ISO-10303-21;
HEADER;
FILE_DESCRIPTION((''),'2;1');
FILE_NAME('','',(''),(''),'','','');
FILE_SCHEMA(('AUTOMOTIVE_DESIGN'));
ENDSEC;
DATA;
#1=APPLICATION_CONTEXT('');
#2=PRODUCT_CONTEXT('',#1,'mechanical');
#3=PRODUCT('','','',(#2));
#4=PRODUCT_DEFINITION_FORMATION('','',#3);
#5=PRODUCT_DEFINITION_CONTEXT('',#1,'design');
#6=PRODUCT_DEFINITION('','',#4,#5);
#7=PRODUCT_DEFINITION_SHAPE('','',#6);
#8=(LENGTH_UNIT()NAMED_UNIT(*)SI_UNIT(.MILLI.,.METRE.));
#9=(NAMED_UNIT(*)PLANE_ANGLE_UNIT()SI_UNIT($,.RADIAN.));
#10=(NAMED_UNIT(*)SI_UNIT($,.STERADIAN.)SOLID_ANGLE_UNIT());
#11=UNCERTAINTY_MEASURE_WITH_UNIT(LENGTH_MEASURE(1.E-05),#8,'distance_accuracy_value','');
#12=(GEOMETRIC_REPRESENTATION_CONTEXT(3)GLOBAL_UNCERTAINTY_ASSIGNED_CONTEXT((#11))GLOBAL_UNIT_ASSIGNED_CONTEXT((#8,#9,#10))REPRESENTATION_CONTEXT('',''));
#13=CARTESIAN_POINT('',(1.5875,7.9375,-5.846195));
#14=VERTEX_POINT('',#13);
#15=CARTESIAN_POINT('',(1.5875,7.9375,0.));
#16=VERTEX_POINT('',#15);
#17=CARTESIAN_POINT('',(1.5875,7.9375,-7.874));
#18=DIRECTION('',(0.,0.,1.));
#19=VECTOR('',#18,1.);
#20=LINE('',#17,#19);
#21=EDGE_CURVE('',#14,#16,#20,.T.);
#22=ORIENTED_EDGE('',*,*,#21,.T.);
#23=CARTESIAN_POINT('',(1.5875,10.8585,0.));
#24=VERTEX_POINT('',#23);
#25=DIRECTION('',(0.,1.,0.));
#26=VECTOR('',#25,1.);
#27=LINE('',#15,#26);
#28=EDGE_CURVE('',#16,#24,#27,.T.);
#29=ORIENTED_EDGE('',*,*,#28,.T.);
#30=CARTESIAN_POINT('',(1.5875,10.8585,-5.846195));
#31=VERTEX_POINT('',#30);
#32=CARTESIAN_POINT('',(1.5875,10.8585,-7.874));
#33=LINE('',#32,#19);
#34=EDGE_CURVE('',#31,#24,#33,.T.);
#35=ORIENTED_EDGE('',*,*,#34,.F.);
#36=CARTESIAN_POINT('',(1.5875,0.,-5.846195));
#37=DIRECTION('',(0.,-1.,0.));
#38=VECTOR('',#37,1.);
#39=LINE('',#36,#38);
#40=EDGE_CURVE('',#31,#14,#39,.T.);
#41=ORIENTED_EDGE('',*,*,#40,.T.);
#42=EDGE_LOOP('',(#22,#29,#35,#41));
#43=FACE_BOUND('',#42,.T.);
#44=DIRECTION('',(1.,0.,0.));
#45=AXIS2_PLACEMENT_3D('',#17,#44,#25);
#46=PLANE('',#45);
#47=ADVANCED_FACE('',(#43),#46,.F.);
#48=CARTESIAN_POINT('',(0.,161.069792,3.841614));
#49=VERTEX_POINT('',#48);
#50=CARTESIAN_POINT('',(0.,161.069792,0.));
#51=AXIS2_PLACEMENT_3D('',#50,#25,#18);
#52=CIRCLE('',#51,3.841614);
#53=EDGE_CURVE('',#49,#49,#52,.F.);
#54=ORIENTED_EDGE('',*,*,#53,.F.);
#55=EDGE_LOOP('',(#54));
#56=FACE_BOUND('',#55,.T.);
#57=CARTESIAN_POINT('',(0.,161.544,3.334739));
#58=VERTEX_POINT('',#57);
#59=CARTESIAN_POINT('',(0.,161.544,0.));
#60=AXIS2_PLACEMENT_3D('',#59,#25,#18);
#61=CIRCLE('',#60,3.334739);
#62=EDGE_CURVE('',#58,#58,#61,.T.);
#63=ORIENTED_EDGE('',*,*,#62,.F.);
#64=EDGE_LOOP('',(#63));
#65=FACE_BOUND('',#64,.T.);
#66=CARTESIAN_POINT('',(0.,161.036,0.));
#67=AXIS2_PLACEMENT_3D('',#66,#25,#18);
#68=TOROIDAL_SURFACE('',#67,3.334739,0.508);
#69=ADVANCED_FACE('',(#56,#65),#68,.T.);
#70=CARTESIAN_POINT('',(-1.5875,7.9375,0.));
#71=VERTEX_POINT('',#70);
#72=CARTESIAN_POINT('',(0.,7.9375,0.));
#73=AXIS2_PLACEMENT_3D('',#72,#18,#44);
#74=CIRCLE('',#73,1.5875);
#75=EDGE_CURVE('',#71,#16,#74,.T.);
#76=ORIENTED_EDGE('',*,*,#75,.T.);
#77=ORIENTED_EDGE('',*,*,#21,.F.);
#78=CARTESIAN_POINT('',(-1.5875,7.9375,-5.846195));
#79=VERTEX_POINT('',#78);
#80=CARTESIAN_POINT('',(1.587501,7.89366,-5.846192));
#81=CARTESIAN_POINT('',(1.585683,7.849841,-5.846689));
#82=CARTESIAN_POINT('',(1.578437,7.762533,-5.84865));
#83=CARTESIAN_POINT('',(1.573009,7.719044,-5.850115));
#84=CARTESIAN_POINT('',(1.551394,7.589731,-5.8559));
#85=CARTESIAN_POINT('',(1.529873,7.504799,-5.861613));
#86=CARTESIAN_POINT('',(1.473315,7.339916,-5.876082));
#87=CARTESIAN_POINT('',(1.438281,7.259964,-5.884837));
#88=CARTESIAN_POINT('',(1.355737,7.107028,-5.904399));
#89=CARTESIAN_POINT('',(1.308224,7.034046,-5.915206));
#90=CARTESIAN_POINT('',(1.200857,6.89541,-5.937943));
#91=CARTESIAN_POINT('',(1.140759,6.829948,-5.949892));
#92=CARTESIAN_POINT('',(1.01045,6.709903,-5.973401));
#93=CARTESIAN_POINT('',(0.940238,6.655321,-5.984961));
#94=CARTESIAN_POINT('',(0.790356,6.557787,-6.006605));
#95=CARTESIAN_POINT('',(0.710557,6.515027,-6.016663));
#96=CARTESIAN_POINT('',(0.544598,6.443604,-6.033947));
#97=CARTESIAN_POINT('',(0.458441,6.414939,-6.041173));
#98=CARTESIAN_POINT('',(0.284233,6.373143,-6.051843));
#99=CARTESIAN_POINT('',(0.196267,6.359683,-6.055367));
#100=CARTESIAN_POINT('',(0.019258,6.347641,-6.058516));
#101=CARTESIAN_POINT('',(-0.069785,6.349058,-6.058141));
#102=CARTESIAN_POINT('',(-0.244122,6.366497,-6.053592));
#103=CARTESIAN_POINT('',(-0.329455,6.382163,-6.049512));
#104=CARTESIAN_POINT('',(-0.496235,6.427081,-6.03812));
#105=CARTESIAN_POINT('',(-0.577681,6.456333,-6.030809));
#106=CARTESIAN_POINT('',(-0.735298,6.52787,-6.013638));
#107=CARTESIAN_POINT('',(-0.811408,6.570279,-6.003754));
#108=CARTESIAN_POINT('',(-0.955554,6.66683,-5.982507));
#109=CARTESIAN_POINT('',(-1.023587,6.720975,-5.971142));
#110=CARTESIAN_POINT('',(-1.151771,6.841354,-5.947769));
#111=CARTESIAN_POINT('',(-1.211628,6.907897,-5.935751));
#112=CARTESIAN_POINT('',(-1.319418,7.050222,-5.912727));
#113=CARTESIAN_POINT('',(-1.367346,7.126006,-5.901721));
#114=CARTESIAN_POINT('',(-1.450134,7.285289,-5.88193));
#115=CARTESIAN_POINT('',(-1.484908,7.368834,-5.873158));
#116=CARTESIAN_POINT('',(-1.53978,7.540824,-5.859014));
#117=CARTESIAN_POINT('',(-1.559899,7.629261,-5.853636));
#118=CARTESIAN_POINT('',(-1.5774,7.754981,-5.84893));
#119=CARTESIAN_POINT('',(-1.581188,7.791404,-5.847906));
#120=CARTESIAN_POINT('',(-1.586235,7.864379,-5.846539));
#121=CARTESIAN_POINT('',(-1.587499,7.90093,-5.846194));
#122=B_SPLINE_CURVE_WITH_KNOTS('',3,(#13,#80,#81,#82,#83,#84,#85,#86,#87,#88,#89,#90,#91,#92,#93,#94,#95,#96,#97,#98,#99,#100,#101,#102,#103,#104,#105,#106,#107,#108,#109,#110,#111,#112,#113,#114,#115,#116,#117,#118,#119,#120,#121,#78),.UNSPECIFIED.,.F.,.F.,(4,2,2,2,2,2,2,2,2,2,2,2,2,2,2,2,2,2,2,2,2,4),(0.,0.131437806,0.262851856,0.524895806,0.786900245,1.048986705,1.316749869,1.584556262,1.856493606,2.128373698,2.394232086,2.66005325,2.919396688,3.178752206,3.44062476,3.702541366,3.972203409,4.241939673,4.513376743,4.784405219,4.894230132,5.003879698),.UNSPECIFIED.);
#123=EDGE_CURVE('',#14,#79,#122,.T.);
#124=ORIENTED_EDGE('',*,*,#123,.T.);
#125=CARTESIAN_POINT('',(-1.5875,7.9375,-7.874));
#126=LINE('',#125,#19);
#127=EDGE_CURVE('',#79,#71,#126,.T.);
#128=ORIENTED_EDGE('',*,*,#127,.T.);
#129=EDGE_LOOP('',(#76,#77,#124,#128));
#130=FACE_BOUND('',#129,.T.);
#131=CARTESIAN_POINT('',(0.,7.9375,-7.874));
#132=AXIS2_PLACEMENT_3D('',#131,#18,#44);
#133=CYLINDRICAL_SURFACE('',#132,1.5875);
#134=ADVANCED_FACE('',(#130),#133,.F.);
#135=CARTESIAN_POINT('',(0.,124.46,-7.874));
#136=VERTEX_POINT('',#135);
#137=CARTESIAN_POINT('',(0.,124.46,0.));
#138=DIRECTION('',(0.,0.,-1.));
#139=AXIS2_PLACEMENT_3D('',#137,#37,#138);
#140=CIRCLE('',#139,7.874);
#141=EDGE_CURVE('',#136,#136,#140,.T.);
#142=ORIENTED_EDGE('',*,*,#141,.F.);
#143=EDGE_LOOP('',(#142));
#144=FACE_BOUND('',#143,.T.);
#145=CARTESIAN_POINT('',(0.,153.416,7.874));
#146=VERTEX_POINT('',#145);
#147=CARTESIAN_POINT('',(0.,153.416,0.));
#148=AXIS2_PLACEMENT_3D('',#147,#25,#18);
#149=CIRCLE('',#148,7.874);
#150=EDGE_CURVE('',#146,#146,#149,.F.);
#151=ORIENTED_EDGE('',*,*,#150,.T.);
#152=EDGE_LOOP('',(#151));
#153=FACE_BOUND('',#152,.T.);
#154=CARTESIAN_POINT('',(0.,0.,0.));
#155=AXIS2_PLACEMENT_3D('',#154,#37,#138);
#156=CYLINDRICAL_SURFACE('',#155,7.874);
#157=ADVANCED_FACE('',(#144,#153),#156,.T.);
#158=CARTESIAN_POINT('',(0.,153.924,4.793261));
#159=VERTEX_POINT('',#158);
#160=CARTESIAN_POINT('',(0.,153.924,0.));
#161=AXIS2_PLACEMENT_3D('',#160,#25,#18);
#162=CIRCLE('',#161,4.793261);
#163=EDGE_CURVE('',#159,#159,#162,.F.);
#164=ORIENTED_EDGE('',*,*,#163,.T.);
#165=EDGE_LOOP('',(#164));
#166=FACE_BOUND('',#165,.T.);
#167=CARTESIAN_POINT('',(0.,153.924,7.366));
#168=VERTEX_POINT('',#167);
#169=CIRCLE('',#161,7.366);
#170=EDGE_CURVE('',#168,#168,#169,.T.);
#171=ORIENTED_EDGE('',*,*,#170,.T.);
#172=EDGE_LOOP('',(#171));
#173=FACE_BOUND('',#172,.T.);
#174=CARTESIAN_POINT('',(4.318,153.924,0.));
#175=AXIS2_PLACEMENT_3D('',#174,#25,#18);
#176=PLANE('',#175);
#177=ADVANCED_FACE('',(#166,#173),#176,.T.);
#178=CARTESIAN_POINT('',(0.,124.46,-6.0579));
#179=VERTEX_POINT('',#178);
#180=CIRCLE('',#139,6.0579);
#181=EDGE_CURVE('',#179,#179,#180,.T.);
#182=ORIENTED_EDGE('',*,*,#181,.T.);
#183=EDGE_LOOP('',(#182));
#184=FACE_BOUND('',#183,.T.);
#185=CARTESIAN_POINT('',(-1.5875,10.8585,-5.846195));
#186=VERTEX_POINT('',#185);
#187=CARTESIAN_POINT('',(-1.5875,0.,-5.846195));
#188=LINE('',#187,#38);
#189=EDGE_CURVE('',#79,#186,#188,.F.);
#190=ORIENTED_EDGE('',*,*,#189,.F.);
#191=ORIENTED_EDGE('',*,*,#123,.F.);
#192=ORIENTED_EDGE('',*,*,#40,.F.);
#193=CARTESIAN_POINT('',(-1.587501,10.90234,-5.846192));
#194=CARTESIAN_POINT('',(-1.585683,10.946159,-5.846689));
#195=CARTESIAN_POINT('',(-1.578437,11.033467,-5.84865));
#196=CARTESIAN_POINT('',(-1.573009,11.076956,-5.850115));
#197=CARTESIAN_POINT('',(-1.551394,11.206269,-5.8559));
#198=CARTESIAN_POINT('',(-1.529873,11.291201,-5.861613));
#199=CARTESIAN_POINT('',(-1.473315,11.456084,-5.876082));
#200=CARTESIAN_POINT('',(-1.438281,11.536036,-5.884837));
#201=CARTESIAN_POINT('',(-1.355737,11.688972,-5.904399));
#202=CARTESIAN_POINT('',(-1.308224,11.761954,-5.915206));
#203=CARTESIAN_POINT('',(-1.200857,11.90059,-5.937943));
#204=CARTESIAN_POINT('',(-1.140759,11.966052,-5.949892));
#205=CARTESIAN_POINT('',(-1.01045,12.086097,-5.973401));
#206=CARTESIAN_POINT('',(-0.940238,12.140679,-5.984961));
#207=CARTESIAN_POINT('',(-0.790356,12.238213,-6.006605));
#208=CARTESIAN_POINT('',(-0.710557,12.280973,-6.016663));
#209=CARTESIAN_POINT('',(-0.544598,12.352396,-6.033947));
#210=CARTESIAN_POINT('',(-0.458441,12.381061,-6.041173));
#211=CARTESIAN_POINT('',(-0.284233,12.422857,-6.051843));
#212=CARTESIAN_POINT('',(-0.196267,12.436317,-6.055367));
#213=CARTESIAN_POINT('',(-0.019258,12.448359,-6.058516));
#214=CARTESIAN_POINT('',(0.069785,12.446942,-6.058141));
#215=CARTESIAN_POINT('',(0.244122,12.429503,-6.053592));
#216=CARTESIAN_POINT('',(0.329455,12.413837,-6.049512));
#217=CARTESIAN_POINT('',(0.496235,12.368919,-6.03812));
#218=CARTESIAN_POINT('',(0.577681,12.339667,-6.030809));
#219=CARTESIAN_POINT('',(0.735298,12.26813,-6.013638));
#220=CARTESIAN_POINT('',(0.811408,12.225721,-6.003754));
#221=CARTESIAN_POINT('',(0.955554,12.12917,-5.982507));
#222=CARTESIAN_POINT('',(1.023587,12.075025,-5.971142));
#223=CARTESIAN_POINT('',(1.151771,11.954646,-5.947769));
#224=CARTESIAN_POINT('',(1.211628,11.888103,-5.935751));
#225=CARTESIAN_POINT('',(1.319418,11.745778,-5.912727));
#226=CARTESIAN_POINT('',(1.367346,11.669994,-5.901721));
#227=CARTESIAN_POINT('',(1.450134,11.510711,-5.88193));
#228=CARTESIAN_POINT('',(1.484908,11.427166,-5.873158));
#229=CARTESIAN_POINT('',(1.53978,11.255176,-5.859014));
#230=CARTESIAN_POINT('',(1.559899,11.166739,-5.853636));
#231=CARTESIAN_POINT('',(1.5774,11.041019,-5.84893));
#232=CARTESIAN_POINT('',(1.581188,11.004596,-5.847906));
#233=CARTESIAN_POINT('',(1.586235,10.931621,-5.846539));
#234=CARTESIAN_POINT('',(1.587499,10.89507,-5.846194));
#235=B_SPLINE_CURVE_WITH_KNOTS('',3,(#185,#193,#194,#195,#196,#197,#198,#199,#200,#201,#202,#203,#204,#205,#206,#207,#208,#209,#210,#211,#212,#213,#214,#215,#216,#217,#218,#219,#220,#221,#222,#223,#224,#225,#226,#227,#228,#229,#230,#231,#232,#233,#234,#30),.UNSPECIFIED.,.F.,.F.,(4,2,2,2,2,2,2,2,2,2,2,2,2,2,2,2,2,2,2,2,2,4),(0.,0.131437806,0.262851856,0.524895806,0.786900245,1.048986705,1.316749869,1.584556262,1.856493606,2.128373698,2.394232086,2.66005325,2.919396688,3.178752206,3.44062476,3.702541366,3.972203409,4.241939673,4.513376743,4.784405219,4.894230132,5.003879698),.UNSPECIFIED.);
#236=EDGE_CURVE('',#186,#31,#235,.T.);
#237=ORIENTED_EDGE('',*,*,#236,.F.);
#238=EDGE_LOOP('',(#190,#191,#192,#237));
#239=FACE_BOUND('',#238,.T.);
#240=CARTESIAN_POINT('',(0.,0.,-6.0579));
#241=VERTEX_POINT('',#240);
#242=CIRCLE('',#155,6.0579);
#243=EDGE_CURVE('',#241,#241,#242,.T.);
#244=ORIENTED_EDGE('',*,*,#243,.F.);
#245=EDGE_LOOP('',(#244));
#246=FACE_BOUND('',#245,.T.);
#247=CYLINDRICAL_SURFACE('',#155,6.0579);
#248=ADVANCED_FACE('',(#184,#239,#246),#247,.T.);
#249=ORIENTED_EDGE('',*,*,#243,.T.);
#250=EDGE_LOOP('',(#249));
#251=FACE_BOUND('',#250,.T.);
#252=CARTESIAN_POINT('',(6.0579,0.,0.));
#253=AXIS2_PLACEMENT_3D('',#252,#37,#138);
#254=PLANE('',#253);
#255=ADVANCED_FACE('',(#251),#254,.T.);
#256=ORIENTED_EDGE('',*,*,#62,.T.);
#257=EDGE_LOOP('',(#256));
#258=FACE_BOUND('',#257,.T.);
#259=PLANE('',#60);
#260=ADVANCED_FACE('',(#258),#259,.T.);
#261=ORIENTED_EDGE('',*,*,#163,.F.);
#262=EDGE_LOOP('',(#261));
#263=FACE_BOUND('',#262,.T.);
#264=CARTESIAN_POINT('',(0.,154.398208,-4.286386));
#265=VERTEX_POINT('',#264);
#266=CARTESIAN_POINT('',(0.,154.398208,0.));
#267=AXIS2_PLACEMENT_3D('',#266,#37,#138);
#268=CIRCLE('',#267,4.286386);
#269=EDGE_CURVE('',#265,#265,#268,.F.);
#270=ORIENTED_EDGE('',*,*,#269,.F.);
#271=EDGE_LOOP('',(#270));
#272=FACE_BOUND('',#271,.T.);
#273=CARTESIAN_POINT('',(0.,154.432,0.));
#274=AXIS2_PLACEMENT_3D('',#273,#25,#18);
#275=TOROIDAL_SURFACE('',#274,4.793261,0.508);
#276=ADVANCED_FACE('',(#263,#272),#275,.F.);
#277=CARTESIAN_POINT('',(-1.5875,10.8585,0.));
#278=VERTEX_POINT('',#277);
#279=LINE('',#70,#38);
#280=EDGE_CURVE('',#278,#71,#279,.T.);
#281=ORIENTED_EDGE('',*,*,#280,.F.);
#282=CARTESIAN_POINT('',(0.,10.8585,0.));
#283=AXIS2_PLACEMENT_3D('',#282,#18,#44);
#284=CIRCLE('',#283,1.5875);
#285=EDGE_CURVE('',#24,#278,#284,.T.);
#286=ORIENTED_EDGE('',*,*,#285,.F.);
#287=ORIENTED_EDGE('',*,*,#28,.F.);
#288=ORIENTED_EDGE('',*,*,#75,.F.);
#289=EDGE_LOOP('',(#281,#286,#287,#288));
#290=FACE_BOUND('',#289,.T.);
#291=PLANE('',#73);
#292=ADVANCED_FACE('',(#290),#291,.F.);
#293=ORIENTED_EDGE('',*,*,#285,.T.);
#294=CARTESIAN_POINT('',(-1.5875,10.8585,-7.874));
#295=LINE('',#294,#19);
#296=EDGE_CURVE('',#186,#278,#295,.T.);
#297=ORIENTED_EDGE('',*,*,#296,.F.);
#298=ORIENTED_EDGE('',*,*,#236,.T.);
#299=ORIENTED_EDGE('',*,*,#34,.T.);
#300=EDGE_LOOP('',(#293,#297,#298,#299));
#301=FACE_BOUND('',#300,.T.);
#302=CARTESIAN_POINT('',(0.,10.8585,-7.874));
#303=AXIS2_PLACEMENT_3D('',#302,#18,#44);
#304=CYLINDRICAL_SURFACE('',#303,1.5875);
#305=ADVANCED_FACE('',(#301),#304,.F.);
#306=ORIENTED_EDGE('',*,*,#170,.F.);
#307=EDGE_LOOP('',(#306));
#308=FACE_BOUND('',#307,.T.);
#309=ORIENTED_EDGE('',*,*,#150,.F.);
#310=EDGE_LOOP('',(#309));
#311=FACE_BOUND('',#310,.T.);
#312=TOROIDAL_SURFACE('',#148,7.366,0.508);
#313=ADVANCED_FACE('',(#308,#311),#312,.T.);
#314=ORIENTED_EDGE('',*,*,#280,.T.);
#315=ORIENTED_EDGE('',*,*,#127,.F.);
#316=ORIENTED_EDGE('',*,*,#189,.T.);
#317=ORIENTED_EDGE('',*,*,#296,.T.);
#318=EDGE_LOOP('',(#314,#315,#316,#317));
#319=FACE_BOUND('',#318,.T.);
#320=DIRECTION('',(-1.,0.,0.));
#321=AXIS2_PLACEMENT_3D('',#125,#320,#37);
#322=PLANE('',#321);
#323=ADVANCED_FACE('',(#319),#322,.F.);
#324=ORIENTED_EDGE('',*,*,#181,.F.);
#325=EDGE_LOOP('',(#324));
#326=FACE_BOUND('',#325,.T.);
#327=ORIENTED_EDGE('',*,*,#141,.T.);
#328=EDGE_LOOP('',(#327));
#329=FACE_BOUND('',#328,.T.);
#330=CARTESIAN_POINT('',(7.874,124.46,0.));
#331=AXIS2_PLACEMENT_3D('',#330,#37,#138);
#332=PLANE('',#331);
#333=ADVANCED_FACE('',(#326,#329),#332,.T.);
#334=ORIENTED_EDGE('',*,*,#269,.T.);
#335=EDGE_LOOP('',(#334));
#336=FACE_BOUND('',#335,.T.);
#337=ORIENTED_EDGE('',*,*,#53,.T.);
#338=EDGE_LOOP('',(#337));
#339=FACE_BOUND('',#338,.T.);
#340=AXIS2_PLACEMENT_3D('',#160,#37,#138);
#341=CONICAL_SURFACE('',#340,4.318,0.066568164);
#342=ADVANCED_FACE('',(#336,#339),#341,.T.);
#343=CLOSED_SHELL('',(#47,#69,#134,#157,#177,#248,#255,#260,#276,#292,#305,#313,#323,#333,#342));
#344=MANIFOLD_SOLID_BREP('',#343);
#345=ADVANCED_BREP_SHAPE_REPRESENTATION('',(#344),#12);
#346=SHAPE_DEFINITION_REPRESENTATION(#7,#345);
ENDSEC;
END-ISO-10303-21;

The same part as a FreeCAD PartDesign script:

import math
import FreeCAD as App
import Part
import Sketcher
Q = App.Units.Quantity


def edges_at(feature, points):
    """Names of the edges that pass closest to the given points."""
    edges = feature.Shape.Edges
    near = lambda p: min(range(len(edges)), key=lambda i: edges[i].distToShape(Part.Vertex(*p))[0])
    return sorted({f"Edge{near(p) + 1}" for p in points})

doc = App.newDocument("Part")
body = doc.addObject("PartDesign::Body", "Body")

# Sketch on XY plane
sketch1 = body.newObject("Sketcher::SketchObject", "Sketch")
sketch1.AttachmentSupport = (doc.getObject("XY_Plane"), [""])
sketch1.MapMode = "FlatFace"
sketch1.addGeometry(Part.LineSegment(App.Vector(3.8, 161.5, 0), App.Vector(0, 161.5, 0)), False)
sketch1.addGeometry(Part.LineSegment(App.Vector(0, 161.5, 0), App.Vector(0, 0, 0)), False)
sketch1.addGeometry(Part.LineSegment(App.Vector(0, 0, 0), App.Vector(6.1, 0, 0)), False)
sketch1.addGeometry(Part.LineSegment(App.Vector(6.1, 0, 0), App.Vector(6.1, 124.5, 0)), False)
sketch1.addGeometry(Part.LineSegment(App.Vector(6.1, 124.5, 0), App.Vector(7.9, 124.5, 0)), False)
sketch1.addGeometry(Part.LineSegment(App.Vector(7.9, 124.5, 0), App.Vector(7.9, 153.9, 0)), False)
sketch1.addGeometry(Part.LineSegment(App.Vector(7.9, 153.9, 0), App.Vector(4.3, 153.9, 0)), False)
sketch1.addGeometry(Part.LineSegment(App.Vector(4.3, 153.9, 0), App.Vector(3.8, 161.5, 0)), False)
sketch1.addConstraint(Sketcher.Constraint("Coincident", 0, 2, 1, 1))
sketch1.addConstraint(Sketcher.Constraint("Coincident", 1, 2, 2, 1))
sketch1.addConstraint(Sketcher.Constraint("Coincident", 2, 2, 3, 1))
sketch1.addConstraint(Sketcher.Constraint("Coincident", 3, 2, 4, 1))
sketch1.addConstraint(Sketcher.Constraint("Coincident", 4, 2, 5, 1))
sketch1.addConstraint(Sketcher.Constraint("Coincident", 5, 2, 6, 1))
sketch1.addConstraint(Sketcher.Constraint("Coincident", 6, 2, 7, 1))
sketch1.addConstraint(Sketcher.Constraint("Coincident", 7, 2, 0, 1))
sketch1.addConstraint(Sketcher.Constraint("Horizontal", 0))
sketch1.addConstraint(Sketcher.Constraint("Vertical", 1))
sketch1.addConstraint(Sketcher.Constraint("Horizontal", 2))
sketch1.addConstraint(Sketcher.Constraint("Vertical", 3))
sketch1.addConstraint(Sketcher.Constraint("Horizontal", 4))
sketch1.addConstraint(Sketcher.Constraint("Vertical", 5))
sketch1.addConstraint(Sketcher.Constraint("Horizontal", 6))
sketch1.addConstraint(Sketcher.Constraint("Coincident", 1, 2, -1, 1))
sketch1.addConstraint(Sketcher.Constraint("DistanceY", 3, 1, 3, 2, Q("4.9 in")))
sketch1.addConstraint(Sketcher.Constraint("DistanceX", 0, 2, 0, 1, Q("0.15 in")))
sketch1.addConstraint(Sketcher.Constraint("DistanceX", 6, 2, 6, 1, Q("0.14 in")))
sketch1.addConstraint(Sketcher.Constraint("DistanceY", 1, 2, 1, 1, Q("6.36 in")))
sketch1.addConstraint(Sketcher.Constraint("DistanceY", 5, 1, 5, 2, Q("1.16 in")))
sketch1.addConstraint(Sketcher.Constraint("DistanceX", -1, 1, 4, 2, Q("0.31 in")))
sketch1.addConstraint(Sketcher.Constraint("DistanceX", 2, 1, 2, 2, Q("0.2385 in")))
revolution = body.newObject("PartDesign::Revolution", "Revolution")
revolution.Profile = sketch1
revolution.ReferenceAxis = (sketch1, ["V_Axis"])
revolution.Angle = 360

# Sketch on XY plane
sketch2 = body.newObject("Sketcher::SketchObject", "Sketch001")
sketch2.AttachmentSupport = (doc.getObject("XY_Plane"), [""])
sketch2.MapMode = "FlatFace"
sketch2.addGeometry(Part.LineSegment(App.Vector(-1.6, 10.9, 0), App.Vector(-1.6, 7.9, 0)), False)
sketch2.addGeometry(Part.ArcOfCircle(Part.Circle(App.Vector(0, 7.9, 0), App.Vector(0, 0, 1), 1.6), math.radians(180), math.radians(360)), False)
sketch2.addGeometry(Part.LineSegment(App.Vector(1.6, 7.9, 0), App.Vector(1.6, 10.9, 0)), False)
sketch2.addGeometry(Part.ArcOfCircle(Part.Circle(App.Vector(0, 10.9, 0), App.Vector(0, 0, 1), 1.6), math.radians(0), math.radians(180)), False)
sketch2.addConstraint(Sketcher.Constraint("Tangent", 0, 2, 1, 1))
sketch2.addConstraint(Sketcher.Constraint("Tangent", 1, 2, 2, 1))
sketch2.addConstraint(Sketcher.Constraint("Tangent", 2, 2, 3, 1))
sketch2.addConstraint(Sketcher.Constraint("Tangent", 3, 2, 0, 1))
sketch2.addConstraint(Sketcher.Constraint("Vertical", 0))
sketch2.addConstraint(Sketcher.Constraint("Vertical", 2))
sketch2.addConstraint(Sketcher.Constraint("PointOnObject", 1, 3, -2))
sketch2.addConstraint(Sketcher.Constraint("Radius", 1, Q("0.0625 in")))
sketch2.addConstraint(Sketcher.Constraint("DistanceY", 0, 2, 0, 1, Q("0.115 in")))
sketch2.addConstraint(Sketcher.Constraint("DistanceY", -1, 1, 1, 3, Q("0.3125 in")))
pocket1 = body.newObject("PartDesign::Pocket", "Pocket")
pocket1.Profile = sketch2
pocket1.Type = "ThroughAll"
doc.recompute()

fillet = body.newObject("PartDesign::Fillet", "Fillet")
fillet.Base = (pocket1, edges_at(pocket1, [(0, 153.924, 7.874), (0, 153.924, 4.318), (0, 161.544, 3.81)]))
fillet.Radius = Q("0.02 in")

doc.recompute()
